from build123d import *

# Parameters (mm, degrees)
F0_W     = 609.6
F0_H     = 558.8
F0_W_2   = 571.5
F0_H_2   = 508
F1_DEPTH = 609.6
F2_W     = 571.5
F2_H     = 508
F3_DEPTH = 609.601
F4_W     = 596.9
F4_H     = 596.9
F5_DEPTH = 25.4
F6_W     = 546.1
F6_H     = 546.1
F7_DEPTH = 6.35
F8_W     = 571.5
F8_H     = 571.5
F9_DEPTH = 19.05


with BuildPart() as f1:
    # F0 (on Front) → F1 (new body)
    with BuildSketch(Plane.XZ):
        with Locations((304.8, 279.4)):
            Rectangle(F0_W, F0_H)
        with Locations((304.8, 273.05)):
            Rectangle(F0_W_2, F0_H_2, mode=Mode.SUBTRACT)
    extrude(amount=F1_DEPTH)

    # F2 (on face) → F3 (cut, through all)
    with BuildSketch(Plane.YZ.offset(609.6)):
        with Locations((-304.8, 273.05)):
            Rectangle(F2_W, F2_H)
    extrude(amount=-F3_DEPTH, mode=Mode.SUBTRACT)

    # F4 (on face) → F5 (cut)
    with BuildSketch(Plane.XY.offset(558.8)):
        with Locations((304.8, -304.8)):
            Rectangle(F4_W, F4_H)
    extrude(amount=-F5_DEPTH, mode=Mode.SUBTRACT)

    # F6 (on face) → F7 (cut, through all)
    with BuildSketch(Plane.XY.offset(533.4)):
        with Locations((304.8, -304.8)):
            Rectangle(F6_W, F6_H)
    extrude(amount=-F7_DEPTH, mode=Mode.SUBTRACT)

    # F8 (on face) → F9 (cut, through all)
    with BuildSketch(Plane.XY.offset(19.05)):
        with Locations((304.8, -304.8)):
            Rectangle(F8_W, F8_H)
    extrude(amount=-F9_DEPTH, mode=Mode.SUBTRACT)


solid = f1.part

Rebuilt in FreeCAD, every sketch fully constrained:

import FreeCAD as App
import Part
import Sketcher
from FreeCAD import Vector
Q = App.Units.Quantity

doc = App.newDocument("Part")
body = doc.addObject("PartDesign::Body", "Body")

sketch1 = doc.addObject("Sketcher::SketchObject", "Sketch")
body.addObject(sketch1)
sketch1.AttachmentSupport = (doc.XZ_Plane, [""])
sketch1.MapMode = "FlatFace"
sketch1.addGeometry([
    Part.LineSegment(Vector(0, 559, 0), Vector(0, 0, 0)),
    Part.LineSegment(Vector(0, 0, 0), Vector(610, 0, 0)),
    Part.LineSegment(Vector(610, 0, 0), Vector(610, 559, 0)),
    Part.LineSegment(Vector(610, 559, 0), Vector(0, 559, 0)),
    Part.LineSegment(Vector(591, 19, 0), Vector(19, 19, 0)),
    Part.LineSegment(Vector(19, 19, 0), Vector(19, 527, 0)),
    Part.LineSegment(Vector(19, 527, 0), Vector(591, 527, 0)),
    Part.LineSegment(Vector(591, 527, 0), Vector(591, 19, 0)),
], False)
sketch1.addConstraint([
    Sketcher.Constraint("Coincident", 0, 2, 1, 1),
    Sketcher.Constraint("Coincident", 1, 2, 2, 1),
    Sketcher.Constraint("Coincident", 2, 2, 3, 1),
    Sketcher.Constraint("Coincident", 3, 2, 0, 1),
    Sketcher.Constraint("Coincident", 4, 2, 5, 1),
    Sketcher.Constraint("Coincident", 5, 2, 6, 1),
    Sketcher.Constraint("Coincident", 6, 2, 7, 1),
    Sketcher.Constraint("Coincident", 7, 2, 4, 1),
    Sketcher.Constraint("Vertical", 0),
    Sketcher.Constraint("Horizontal", 1),
    Sketcher.Constraint("Vertical", 2),
    Sketcher.Constraint("Horizontal", 3),
    Sketcher.Constraint("Horizontal", 4),
    Sketcher.Constraint("Vertical", 5),
    Sketcher.Constraint("Horizontal", 6),
    Sketcher.Constraint("Vertical", 7),
    Sketcher.Constraint("Coincident", 0, 2, -1, 1),
    Sketcher.Constraint("DistanceX", 1, 1, 1, 2, Q("24 in")),
    Sketcher.Constraint("DistanceY", 0, 2, 0, 1, Q("22 in")),
    Sketcher.Constraint("DistanceY", 5, 1, 5, 2, Q("20 in")),
    Sketcher.Constraint("DistanceX", 4, 2, 4, 1, Q("22.5 in")),
    Sketcher.Constraint("DistanceX", -1, 1, 4, 2, Q("0.75 in")),
    Sketcher.Constraint("DistanceY", -1, 1, 4, 2, Q("0.75 in")),
])
pad1 = doc.addObject("PartDesign::Pad", "Pad")
body.addObject(pad1)
pad1.Profile = sketch1
pad1.Length = Q("24 in")

sketch2 = doc.addObject("Sketcher::SketchObject", "Sketch001")
body.addObject(sketch2)
sketch2.AttachmentSupport = (doc.YZ_Plane, [""])
sketch2.MapMode = "FlatFace"
sketch2.AttachmentOffset = App.Placement(Vector(0, 0, 24 * 25.4), App.Rotation())
sketch2.addGeometry([
    Part.LineSegment(Vector(-591, 527, 0), Vector(-591, 19, 0)),
    Part.LineSegment(Vector(-591, 19, 0), Vector(-19, 19, 0)),
    Part.LineSegment(Vector(-19, 19, 0), Vector(-19, 527, 0)),
    Part.LineSegment(Vector(-19, 527, 0), Vector(-591, 527, 0)),
], False)
sketch2.addConstraint([
    Sketcher.Constraint("Coincident", 0, 2, 1, 1),
    Sketcher.Constraint("Coincident", 1, 2, 2, 1),
    Sketcher.Constraint("Coincident", 2, 2, 3, 1),
    Sketcher.Constraint("Coincident", 3, 2, 0, 1),
    Sketcher.Constraint("Vertical", 0),
    Sketcher.Constraint("Horizontal", 1),
    Sketcher.Constraint("Vertical", 2),
    Sketcher.Constraint("Horizontal", 3),
    Sketcher.Constraint("DistanceY", 0, 2, 0, 1, Q("20 in")),
    Sketcher.Constraint("DistanceX", 1, 1, 1, 2, Q("22.5 in")),
    Sketcher.Constraint("DistanceX", 0, 2, -1, 1, Q("23.25 in")),
    Sketcher.Constraint("DistanceY", -1, 1, 0, 2, Q("0.75 in")),
])
pocket1 = doc.addObject("PartDesign::Pocket", "Pocket")
body.addObject(pocket1)
pocket1.Profile = sketch2
pocket1.Type = "ThroughAll"

sketch3 = doc.addObject("Sketcher::SketchObject", "Sketch002")
body.addObject(sketch3)
sketch3.AttachmentSupport = (doc.XY_Plane, [""])
sketch3.MapMode = "FlatFace"
sketch3.AttachmentOffset = App.Placement(Vector(0, 0, 22 * 25.4), App.Rotation())
sketch3.addGeometry([
    Part.LineSegment(Vector(6, -6, 0), Vector(6, -603, 0)),
    Part.LineSegment(Vector(6, -603, 0), Vector(603, -603, 0)),
    Part.LineSegment(Vector(603, -603, 0), Vector(603, -6, 0)),
    Part.LineSegment(Vector(603, -6, 0), Vector(6, -6, 0)),
], False)
sketch3.addConstraint([
    Sketcher.Constraint("Coincident", 0, 2, 1, 1),
    Sketcher.Constraint("Coincident", 1, 2, 2, 1),
    Sketcher.Constraint("Coincident", 2, 2, 3, 1),
    Sketcher.Constraint("Coincident", 3, 2, 0, 1),
    Sketcher.Constraint("Vertical", 0),
    Sketcher.Constraint("Horizontal", 1),
    Sketcher.Constraint("Vertical", 2),
    Sketcher.Constraint("Horizontal", 3),
    Sketcher.Constraint("Equal", 3, 0),
    Sketcher.Constraint("DistanceX", 1, 1, 1, 2, Q("23.5 in")),
    Sketcher.Constraint("DistanceX", -1, 1, 0, 2, Q("0.25 in")),
    Sketcher.Constraint("DistanceY", 0, 2, -1, 1, Q("23.75 in")),
])
pocket2 = doc.addObject("PartDesign::Pocket", "Pocket001")
body.addObject(pocket2)
pocket2.Profile = sketch3
pocket2.Length = Q("1 in")

sketch4 = doc.addObject("Sketcher::SketchObject", "Sketch003")
body.addObject(sketch4)
sketch4.AttachmentSupport = (doc.XY_Plane, [""])
sketch4.MapMode = "FlatFace"
sketch4.AttachmentOffset = App.Placement(Vector(0, 0, 21 * 25.4), App.Rotation())
sketch4.addGeometry([
    Part.LineSegment(Vector(32, -32, 0), Vector(32, -578, 0)),
    Part.LineSegment(Vector(32, -578, 0), Vector(578, -578, 0)),
    Part.LineSegment(Vector(578, -578, 0), Vector(578, -32, 0)),
    Part.LineSegment(Vector(578, -32, 0), Vector(32, -32, 0)),
], False)
sketch4.addConstraint([
    Sketcher.Constraint("Coincident", 0, 2, 1, 1),
    Sketcher.Constraint("Coincident", 1, 2, 2, 1),
    Sketcher.Constraint("Coincident", 2, 2, 3, 1),
    Sketcher.Constraint("Coincident", 3, 2, 0, 1),
    Sketcher.Constraint("Vertical", 0),
    Sketcher.Constraint("Horizontal", 1),
    Sketcher.Constraint("Vertical", 2),
    Sketcher.Constraint("Horizontal", 3),
    Sketcher.Constraint("Equal", 3, 0),
    Sketcher.Constraint("DistanceX", 1, 1, 1, 2, Q("21.5 in")),
    Sketcher.Constraint("DistanceX", -1, 1, 0, 2, Q("1.25 in")),
    Sketcher.Constraint("DistanceY", 0, 2, -1, 1, Q("22.75 in")),
])
pocket3 = doc.addObject("PartDesign::Pocket", "Pocket002")
body.addObject(pocket3)
pocket3.Profile = sketch4
pocket3.Length = Q("0.25 in")

sketch5 = doc.addObject("Sketcher::SketchObject", "Sketch004")
body.addObject(sketch5)
sketch5.AttachmentSupport = (doc.XY_Plane, [""])
sketch5.MapMode = "FlatFace"
sketch5.AttachmentOffset = App.Placement(Vector(0, 0, 0.75 * 25.4), App.Rotation())
sketch5.addGeometry([
    Part.LineSegment(Vector(19, -19, 0), Vector(19, -591, 0)),
    Part.LineSegment(Vector(19, -591, 0), Vector(591, -591, 0)),
    Part.LineSegment(Vector(591, -591, 0), Vector(591, -19, 0)),
    Part.LineSegment(Vector(591, -19, 0), Vector(19, -19, 0)),
], False)
sketch5.addConstraint([
    Sketcher.Constraint("Coincident", 0, 2, 1, 1),
    Sketcher.Constraint("Coincident", 1, 2, 2, 1),
    Sketcher.Constraint("Coincident", 2, 2, 3, 1),
    Sketcher.Constraint("Coincident", 3, 2, 0, 1),
    Sketcher.Constraint("Vertical", 0),
    Sketcher.Constraint("Horizontal", 1),
    Sketcher.Constraint("Vertical", 2),
    Sketcher.Constraint("Horizontal", 3),
    Sketcher.Constraint("Equal", 3, 0),
    Sketcher.Constraint("DistanceX", 1, 1, 1, 2, Q("22.5 in")),
    Sketcher.Constraint("DistanceX", -1, 1, 0, 2, Q("0.75 in")),
    Sketcher.Constraint("DistanceY", 0, 2, -1, 1, Q("23.25 in")),
])
pocket4 = doc.addObject("PartDesign::Pocket", "Pocket003")
body.addObject(pocket4)
pocket4.Profile = sketch5
pocket4.Type = "ThroughAll"

doc.recompute()
